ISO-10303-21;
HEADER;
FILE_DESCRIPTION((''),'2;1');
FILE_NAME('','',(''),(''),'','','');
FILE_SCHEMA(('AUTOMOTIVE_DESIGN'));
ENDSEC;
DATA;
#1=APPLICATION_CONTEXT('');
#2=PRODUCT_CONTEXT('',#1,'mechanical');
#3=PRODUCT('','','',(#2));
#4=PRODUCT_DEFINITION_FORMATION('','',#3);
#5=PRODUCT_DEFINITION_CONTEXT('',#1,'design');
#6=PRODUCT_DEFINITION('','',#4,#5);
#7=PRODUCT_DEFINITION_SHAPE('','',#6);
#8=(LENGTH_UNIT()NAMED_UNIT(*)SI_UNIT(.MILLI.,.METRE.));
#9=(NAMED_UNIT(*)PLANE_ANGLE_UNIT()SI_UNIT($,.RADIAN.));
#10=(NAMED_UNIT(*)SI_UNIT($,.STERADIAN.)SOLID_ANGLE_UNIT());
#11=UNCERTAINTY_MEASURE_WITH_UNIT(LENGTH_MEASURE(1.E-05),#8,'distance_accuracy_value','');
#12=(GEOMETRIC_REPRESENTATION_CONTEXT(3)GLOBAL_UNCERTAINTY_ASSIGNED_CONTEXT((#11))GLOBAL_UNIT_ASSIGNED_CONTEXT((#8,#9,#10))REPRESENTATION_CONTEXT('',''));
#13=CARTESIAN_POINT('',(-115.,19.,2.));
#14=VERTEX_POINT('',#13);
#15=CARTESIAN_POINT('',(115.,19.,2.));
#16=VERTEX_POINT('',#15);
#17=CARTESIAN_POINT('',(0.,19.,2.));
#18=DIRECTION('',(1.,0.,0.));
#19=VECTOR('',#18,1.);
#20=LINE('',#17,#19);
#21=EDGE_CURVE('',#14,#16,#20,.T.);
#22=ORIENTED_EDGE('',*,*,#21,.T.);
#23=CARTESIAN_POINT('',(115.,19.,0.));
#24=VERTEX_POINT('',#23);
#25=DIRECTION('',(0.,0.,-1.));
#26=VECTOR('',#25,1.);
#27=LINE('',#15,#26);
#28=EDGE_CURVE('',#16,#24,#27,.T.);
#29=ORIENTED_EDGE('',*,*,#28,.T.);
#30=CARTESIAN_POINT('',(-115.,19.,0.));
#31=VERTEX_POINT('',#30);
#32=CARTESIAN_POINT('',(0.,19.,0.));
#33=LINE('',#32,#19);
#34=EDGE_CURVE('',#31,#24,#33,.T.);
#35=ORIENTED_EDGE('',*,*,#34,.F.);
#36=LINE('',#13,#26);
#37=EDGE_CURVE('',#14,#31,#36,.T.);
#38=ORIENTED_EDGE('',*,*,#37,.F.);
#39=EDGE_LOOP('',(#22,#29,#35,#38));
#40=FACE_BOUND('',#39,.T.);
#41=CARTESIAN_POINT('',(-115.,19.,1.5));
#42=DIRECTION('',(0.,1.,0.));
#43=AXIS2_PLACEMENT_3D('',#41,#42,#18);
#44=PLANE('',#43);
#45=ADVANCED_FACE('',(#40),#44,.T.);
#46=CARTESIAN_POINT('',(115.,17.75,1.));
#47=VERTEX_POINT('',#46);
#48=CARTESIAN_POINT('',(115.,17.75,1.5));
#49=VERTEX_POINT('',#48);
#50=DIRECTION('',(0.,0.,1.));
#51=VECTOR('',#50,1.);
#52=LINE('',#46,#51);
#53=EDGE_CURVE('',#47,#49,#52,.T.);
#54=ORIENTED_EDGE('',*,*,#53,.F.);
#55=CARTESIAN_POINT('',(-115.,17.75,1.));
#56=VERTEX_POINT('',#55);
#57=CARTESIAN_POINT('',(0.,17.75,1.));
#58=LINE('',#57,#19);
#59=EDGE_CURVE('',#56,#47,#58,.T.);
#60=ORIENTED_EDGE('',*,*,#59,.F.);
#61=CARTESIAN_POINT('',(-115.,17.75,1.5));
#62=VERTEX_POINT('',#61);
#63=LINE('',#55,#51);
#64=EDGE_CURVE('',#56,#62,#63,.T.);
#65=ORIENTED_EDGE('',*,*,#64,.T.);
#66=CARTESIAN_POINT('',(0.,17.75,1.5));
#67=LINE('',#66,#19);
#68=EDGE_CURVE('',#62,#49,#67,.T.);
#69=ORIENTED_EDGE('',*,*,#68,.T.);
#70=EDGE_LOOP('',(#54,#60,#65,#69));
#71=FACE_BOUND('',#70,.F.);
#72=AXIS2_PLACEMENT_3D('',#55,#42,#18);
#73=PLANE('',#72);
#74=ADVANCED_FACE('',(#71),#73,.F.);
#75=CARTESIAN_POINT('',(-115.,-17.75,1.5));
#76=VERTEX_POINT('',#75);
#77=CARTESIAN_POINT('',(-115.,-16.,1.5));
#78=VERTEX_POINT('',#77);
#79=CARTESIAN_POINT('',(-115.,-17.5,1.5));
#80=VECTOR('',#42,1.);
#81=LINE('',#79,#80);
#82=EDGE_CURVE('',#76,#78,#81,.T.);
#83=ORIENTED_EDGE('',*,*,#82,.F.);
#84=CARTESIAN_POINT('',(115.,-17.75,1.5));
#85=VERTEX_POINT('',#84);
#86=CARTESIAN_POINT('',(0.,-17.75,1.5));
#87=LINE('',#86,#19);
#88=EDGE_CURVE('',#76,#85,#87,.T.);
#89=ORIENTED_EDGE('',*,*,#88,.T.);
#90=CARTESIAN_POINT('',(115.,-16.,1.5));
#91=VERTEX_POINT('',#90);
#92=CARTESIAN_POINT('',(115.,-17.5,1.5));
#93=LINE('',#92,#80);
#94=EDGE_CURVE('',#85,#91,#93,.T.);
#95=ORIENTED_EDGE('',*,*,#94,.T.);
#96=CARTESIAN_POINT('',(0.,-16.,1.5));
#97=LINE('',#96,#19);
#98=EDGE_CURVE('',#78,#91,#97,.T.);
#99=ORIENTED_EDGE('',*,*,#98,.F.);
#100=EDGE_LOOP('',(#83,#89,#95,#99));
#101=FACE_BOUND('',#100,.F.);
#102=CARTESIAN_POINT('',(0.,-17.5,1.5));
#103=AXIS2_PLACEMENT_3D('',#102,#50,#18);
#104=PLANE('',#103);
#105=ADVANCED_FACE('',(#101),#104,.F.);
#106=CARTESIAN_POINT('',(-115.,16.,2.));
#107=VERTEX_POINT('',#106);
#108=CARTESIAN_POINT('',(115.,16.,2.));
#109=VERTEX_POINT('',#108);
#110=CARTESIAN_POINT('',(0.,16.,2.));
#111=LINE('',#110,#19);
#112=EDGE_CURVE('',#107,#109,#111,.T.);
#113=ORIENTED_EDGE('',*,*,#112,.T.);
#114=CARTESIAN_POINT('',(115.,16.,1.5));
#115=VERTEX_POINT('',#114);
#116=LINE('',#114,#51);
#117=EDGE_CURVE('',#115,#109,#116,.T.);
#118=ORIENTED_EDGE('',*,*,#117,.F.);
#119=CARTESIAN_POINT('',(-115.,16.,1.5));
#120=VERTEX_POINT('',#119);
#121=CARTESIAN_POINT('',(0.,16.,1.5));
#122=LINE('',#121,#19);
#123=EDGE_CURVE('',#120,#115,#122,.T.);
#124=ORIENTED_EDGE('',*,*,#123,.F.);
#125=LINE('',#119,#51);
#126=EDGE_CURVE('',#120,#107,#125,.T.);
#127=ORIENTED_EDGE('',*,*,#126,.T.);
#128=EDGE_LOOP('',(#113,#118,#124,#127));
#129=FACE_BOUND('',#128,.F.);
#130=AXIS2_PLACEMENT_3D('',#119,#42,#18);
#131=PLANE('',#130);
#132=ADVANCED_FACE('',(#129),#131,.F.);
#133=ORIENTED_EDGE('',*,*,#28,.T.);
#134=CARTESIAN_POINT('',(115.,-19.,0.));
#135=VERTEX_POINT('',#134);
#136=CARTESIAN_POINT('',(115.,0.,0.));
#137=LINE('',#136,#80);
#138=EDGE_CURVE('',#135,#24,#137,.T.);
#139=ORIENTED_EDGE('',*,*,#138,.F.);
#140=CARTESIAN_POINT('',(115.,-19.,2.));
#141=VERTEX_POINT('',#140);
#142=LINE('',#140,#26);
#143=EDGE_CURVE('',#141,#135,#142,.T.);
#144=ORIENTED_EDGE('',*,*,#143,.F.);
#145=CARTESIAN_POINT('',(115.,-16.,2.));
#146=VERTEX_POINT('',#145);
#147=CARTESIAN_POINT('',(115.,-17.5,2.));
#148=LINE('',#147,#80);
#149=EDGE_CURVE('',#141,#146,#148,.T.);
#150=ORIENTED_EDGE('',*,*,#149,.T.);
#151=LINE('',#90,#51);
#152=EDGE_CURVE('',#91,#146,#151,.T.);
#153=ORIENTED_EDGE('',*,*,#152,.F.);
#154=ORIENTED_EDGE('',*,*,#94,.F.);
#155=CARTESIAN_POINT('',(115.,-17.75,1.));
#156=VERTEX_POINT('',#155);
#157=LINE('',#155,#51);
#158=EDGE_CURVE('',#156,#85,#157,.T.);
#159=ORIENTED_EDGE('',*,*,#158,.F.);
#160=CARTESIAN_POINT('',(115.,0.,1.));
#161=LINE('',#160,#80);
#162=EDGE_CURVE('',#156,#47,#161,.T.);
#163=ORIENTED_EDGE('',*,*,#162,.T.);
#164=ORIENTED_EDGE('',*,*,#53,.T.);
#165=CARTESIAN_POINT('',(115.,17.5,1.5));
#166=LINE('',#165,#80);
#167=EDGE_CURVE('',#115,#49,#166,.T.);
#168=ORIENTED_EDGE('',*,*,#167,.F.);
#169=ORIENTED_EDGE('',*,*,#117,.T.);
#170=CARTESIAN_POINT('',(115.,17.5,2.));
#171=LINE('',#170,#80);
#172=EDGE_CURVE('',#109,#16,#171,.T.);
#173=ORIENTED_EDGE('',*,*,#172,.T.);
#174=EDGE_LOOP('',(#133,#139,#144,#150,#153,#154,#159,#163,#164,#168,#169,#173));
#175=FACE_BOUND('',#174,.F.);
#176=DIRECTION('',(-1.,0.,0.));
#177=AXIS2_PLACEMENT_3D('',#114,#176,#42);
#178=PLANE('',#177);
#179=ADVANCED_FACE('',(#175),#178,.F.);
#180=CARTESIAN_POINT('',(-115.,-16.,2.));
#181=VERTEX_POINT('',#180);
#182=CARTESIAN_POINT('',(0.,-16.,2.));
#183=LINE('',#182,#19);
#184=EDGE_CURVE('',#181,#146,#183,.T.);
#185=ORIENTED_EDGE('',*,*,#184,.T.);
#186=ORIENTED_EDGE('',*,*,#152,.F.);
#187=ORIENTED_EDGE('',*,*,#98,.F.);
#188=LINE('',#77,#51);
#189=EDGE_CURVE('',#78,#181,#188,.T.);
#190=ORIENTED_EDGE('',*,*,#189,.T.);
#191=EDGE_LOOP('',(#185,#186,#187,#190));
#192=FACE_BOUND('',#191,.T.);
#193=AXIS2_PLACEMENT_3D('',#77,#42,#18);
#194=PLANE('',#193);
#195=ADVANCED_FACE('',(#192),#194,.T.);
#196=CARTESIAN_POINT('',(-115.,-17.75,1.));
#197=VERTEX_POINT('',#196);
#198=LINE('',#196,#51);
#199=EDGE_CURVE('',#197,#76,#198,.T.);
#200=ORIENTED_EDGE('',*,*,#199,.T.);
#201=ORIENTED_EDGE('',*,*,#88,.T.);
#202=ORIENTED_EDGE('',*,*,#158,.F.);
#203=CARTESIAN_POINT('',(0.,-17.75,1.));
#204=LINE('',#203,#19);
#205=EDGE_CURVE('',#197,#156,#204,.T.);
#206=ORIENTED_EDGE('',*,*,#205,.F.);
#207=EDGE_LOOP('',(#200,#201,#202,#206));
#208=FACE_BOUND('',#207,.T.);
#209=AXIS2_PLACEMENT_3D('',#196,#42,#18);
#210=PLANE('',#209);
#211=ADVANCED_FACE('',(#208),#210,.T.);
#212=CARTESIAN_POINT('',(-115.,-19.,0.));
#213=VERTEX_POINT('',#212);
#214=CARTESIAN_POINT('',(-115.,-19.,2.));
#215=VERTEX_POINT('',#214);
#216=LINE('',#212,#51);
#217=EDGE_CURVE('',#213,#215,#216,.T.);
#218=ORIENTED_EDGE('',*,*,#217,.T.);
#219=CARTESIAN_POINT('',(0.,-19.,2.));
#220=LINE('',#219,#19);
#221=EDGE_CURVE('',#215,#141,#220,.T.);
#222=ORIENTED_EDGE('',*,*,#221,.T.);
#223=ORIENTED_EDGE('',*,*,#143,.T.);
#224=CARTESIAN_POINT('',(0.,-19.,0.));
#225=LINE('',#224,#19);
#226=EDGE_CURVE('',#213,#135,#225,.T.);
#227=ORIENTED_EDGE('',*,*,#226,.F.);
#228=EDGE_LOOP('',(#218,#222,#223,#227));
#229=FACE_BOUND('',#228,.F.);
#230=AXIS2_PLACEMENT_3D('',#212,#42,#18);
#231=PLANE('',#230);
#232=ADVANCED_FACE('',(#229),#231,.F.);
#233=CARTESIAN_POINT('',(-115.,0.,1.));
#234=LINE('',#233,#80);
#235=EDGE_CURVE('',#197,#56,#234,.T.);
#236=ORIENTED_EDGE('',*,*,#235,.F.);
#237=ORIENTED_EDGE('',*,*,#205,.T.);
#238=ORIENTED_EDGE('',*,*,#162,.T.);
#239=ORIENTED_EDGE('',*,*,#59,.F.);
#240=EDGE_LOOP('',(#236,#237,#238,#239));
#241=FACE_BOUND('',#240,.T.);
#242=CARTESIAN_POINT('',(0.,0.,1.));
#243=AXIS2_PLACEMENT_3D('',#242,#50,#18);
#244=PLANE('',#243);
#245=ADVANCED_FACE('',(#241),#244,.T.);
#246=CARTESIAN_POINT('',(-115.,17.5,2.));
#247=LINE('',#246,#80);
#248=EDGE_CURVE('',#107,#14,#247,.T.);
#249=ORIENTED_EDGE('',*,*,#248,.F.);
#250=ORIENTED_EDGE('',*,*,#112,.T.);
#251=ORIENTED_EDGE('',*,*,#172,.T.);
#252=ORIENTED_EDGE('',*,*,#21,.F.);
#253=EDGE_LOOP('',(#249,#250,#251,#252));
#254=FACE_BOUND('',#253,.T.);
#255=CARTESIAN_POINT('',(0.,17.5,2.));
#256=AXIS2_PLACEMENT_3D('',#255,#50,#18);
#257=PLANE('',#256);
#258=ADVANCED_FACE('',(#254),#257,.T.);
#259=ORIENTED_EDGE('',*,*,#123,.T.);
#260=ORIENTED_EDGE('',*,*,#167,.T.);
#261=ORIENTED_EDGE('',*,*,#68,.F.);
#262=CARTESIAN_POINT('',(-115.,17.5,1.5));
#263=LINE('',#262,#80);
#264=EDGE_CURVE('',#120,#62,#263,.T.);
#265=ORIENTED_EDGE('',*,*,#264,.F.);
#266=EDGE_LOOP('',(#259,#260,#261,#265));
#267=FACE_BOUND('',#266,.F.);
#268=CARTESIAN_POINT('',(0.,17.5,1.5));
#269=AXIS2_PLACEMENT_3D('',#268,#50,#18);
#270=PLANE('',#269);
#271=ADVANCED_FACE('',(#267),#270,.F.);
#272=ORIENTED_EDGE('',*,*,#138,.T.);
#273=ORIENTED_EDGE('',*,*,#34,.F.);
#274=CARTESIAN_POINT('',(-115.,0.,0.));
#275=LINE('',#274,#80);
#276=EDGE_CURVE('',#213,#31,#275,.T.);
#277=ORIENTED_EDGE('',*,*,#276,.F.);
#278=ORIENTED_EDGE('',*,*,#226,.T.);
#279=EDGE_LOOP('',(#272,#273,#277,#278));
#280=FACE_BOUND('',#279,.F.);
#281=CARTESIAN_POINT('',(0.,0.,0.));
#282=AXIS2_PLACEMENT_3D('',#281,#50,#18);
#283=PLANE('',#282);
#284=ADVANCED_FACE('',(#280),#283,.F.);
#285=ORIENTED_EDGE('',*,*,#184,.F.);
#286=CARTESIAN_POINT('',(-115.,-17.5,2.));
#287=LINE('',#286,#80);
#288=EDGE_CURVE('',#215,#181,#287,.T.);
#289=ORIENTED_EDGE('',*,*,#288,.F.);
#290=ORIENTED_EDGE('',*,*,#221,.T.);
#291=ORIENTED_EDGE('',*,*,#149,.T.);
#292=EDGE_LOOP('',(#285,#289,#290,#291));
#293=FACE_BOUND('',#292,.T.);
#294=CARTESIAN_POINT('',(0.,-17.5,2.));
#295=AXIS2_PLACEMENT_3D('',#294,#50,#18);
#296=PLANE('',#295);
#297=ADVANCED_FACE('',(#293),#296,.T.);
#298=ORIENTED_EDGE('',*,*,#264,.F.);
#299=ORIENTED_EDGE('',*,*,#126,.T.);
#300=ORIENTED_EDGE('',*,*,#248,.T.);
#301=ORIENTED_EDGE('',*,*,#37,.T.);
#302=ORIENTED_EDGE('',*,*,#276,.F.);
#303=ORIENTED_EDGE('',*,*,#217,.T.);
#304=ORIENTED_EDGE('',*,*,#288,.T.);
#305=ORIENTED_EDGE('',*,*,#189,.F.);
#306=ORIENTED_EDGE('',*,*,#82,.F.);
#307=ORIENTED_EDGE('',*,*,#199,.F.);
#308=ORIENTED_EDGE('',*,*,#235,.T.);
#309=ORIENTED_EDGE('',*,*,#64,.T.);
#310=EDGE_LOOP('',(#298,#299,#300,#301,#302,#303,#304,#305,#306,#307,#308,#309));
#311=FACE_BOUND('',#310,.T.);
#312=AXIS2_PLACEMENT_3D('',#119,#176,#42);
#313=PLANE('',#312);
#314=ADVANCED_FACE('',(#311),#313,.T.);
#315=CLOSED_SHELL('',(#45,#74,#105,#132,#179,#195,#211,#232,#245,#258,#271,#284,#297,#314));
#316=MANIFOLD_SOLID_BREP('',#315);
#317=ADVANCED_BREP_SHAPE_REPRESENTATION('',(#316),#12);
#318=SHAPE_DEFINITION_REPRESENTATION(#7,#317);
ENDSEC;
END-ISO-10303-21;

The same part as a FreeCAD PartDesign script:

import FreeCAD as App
import Part
import Sketcher
Q = App.Units.Quantity


def add_polygon(sketch, points):
    """Adds a closed chain of lines whose ends are joined by coincident constraints."""
    first, n = sketch.GeometryCount, len(points)
    for a, b in zip(points, points[1:] + points[:1]):
        sketch.addGeometry(Part.LineSegment(App.Vector(*a, 0), App.Vector(*b, 0)), False)
    for i in range(n):
        sketch.addConstraint(Sketcher.Constraint("Coincident", first + i, 2, first + (i + 1) % n, 1))

doc = App.newDocument("Part")
body = doc.addObject("PartDesign::Body", "Body")

# Sketch on XY plane
sketch1 = body.newObject("Sketcher::SketchObject", "Sketch")
sketch1.AttachmentSupport = (doc.getObject("XY_Plane"), [""])
sketch1.MapMode = "FlatFace"
add_polygon(sketch1, [(-115, 19), (-115, -19), (115, -19), (115, 19)])  # lines 0-3
sketch1.addConstraint([
    Sketcher.Constraint("Vertical", 0),
    Sketcher.Constraint("Horizontal", 1),
    Sketcher.Constraint("Vertical", 2),
    Sketcher.Constraint("Horizontal", 3),
    Sketcher.Constraint("Symmetric", 0, 2, 2, 2, -1, 1),
    Sketcher.Constraint("DistanceX", 1, 1, 1, 2, Q("230 mm")),
    Sketcher.Constraint("DistanceY", 0, 2, 0, 1, Q("38 mm")),
])
pad1 = body.newObject("PartDesign::Pad", "Pad")
pad1.Profile = sketch1
pad1.Length = 1

# Sketch on XY plane
sketch2 = body.newObject("Sketcher::SketchObject", "Sketch001")
sketch2.AttachmentSupport = (doc.getObject("XY_Plane"), [""])
sketch2.MapMode = "FlatFace"
sketch2.AttachmentOffset = App.Placement(App.Vector(0, 0, 1), App.Rotation())
add_polygon(sketch2, [(-115, 19), (-115, 17.8), (115, 17.8), (115, 19)])  # lines 0-3
add_polygon(sketch2, [(-115, -17.8), (-115, -19), (115, -19), (115, -17.8)])  # lines 4-7
sketch2.addConstraint([
    Sketcher.Constraint("Vertical", 0),
    Sketcher.Constraint("Horizontal", 1),
    Sketcher.Constraint("Vertical", 2),
    Sketcher.Constraint("Horizontal", 3),
    Sketcher.Constraint("Vertical", 4),
    Sketcher.Constraint("Horizontal", 5),
    Sketcher.Constraint("Vertical", 6),
    Sketcher.Constraint("Horizontal", 7),
    Sketcher.Constraint("Symmetric", 2, 2, 4, 2, -1, 1),
    Sketcher.Constraint("Symmetric", 0, 2, 6, 2, -1, 1),
    Sketcher.Constraint("Vertical", 3, 2, 4, 2),
    Sketcher.Constraint("DistanceX", 1, 1, 1, 2, Q("230 mm")),
    Sketcher.Constraint("DistanceY", -1, 1, 2, 2, Q("19 mm")),
    Sketcher.Constraint("DistanceY", 0, 2, 0, 1, Q("1.25 mm")),
])
pad2 = body.newObject("PartDesign::Pad", "Pad001")
pad2.Profile = sketch2
pad2.Length = 0.5

# Sketch on XY plane
sketch3 = body.newObject("Sketcher::SketchObject", "Sketch002")
sketch3.AttachmentSupport = (doc.getObject("XY_Plane"), [""])
sketch3.MapMode = "FlatFace"
sketch3.AttachmentOffset = App.Placement(App.Vector(0, 0, 1.5), App.Rotation())
add_polygon(sketch3, [(-115, 19), (-115, 16), (115, 16), (115, 19)])  # lines 0-3
add_polygon(sketch3, [(-115, -16), (-115, -19), (115, -19), (115, -16)])  # lines 4-7
sketch3.addConstraint([
    Sketcher.Constraint("Vertical", 0),
    Sketcher.Constraint("Horizontal", 1),
    Sketcher.Constraint("Vertical", 2),
    Sketcher.Constraint("Horizontal", 3),
    Sketcher.Constraint("Vertical", 4),
    Sketcher.Constraint("Horizontal", 5),
    Sketcher.Constraint("Vertical", 6),
    Sketcher.Constraint("Horizontal", 7),
    Sketcher.Constraint("Symmetric", 2, 2, 4, 2, -1, 1),
    Sketcher.Constraint("Symmetric", 0, 2, 6, 2, -1, 1),
    Sketcher.Constraint("Vertical", 3, 2, 4, 2),
    Sketcher.Constraint("DistanceX", 1, 1, 1, 2, Q("230 mm")),
    Sketcher.Constraint("DistanceY", 0, 2, 0, 1, Q("3 mm")),
    Sketcher.Constraint("DistanceY", -1, 1, 0, 2, Q("16 mm")),
])
pad3 = body.newObject("PartDesign::Pad", "Pad002")
pad3.Profile = sketch3
pad3.Length = 0.5

doc.recompute()
